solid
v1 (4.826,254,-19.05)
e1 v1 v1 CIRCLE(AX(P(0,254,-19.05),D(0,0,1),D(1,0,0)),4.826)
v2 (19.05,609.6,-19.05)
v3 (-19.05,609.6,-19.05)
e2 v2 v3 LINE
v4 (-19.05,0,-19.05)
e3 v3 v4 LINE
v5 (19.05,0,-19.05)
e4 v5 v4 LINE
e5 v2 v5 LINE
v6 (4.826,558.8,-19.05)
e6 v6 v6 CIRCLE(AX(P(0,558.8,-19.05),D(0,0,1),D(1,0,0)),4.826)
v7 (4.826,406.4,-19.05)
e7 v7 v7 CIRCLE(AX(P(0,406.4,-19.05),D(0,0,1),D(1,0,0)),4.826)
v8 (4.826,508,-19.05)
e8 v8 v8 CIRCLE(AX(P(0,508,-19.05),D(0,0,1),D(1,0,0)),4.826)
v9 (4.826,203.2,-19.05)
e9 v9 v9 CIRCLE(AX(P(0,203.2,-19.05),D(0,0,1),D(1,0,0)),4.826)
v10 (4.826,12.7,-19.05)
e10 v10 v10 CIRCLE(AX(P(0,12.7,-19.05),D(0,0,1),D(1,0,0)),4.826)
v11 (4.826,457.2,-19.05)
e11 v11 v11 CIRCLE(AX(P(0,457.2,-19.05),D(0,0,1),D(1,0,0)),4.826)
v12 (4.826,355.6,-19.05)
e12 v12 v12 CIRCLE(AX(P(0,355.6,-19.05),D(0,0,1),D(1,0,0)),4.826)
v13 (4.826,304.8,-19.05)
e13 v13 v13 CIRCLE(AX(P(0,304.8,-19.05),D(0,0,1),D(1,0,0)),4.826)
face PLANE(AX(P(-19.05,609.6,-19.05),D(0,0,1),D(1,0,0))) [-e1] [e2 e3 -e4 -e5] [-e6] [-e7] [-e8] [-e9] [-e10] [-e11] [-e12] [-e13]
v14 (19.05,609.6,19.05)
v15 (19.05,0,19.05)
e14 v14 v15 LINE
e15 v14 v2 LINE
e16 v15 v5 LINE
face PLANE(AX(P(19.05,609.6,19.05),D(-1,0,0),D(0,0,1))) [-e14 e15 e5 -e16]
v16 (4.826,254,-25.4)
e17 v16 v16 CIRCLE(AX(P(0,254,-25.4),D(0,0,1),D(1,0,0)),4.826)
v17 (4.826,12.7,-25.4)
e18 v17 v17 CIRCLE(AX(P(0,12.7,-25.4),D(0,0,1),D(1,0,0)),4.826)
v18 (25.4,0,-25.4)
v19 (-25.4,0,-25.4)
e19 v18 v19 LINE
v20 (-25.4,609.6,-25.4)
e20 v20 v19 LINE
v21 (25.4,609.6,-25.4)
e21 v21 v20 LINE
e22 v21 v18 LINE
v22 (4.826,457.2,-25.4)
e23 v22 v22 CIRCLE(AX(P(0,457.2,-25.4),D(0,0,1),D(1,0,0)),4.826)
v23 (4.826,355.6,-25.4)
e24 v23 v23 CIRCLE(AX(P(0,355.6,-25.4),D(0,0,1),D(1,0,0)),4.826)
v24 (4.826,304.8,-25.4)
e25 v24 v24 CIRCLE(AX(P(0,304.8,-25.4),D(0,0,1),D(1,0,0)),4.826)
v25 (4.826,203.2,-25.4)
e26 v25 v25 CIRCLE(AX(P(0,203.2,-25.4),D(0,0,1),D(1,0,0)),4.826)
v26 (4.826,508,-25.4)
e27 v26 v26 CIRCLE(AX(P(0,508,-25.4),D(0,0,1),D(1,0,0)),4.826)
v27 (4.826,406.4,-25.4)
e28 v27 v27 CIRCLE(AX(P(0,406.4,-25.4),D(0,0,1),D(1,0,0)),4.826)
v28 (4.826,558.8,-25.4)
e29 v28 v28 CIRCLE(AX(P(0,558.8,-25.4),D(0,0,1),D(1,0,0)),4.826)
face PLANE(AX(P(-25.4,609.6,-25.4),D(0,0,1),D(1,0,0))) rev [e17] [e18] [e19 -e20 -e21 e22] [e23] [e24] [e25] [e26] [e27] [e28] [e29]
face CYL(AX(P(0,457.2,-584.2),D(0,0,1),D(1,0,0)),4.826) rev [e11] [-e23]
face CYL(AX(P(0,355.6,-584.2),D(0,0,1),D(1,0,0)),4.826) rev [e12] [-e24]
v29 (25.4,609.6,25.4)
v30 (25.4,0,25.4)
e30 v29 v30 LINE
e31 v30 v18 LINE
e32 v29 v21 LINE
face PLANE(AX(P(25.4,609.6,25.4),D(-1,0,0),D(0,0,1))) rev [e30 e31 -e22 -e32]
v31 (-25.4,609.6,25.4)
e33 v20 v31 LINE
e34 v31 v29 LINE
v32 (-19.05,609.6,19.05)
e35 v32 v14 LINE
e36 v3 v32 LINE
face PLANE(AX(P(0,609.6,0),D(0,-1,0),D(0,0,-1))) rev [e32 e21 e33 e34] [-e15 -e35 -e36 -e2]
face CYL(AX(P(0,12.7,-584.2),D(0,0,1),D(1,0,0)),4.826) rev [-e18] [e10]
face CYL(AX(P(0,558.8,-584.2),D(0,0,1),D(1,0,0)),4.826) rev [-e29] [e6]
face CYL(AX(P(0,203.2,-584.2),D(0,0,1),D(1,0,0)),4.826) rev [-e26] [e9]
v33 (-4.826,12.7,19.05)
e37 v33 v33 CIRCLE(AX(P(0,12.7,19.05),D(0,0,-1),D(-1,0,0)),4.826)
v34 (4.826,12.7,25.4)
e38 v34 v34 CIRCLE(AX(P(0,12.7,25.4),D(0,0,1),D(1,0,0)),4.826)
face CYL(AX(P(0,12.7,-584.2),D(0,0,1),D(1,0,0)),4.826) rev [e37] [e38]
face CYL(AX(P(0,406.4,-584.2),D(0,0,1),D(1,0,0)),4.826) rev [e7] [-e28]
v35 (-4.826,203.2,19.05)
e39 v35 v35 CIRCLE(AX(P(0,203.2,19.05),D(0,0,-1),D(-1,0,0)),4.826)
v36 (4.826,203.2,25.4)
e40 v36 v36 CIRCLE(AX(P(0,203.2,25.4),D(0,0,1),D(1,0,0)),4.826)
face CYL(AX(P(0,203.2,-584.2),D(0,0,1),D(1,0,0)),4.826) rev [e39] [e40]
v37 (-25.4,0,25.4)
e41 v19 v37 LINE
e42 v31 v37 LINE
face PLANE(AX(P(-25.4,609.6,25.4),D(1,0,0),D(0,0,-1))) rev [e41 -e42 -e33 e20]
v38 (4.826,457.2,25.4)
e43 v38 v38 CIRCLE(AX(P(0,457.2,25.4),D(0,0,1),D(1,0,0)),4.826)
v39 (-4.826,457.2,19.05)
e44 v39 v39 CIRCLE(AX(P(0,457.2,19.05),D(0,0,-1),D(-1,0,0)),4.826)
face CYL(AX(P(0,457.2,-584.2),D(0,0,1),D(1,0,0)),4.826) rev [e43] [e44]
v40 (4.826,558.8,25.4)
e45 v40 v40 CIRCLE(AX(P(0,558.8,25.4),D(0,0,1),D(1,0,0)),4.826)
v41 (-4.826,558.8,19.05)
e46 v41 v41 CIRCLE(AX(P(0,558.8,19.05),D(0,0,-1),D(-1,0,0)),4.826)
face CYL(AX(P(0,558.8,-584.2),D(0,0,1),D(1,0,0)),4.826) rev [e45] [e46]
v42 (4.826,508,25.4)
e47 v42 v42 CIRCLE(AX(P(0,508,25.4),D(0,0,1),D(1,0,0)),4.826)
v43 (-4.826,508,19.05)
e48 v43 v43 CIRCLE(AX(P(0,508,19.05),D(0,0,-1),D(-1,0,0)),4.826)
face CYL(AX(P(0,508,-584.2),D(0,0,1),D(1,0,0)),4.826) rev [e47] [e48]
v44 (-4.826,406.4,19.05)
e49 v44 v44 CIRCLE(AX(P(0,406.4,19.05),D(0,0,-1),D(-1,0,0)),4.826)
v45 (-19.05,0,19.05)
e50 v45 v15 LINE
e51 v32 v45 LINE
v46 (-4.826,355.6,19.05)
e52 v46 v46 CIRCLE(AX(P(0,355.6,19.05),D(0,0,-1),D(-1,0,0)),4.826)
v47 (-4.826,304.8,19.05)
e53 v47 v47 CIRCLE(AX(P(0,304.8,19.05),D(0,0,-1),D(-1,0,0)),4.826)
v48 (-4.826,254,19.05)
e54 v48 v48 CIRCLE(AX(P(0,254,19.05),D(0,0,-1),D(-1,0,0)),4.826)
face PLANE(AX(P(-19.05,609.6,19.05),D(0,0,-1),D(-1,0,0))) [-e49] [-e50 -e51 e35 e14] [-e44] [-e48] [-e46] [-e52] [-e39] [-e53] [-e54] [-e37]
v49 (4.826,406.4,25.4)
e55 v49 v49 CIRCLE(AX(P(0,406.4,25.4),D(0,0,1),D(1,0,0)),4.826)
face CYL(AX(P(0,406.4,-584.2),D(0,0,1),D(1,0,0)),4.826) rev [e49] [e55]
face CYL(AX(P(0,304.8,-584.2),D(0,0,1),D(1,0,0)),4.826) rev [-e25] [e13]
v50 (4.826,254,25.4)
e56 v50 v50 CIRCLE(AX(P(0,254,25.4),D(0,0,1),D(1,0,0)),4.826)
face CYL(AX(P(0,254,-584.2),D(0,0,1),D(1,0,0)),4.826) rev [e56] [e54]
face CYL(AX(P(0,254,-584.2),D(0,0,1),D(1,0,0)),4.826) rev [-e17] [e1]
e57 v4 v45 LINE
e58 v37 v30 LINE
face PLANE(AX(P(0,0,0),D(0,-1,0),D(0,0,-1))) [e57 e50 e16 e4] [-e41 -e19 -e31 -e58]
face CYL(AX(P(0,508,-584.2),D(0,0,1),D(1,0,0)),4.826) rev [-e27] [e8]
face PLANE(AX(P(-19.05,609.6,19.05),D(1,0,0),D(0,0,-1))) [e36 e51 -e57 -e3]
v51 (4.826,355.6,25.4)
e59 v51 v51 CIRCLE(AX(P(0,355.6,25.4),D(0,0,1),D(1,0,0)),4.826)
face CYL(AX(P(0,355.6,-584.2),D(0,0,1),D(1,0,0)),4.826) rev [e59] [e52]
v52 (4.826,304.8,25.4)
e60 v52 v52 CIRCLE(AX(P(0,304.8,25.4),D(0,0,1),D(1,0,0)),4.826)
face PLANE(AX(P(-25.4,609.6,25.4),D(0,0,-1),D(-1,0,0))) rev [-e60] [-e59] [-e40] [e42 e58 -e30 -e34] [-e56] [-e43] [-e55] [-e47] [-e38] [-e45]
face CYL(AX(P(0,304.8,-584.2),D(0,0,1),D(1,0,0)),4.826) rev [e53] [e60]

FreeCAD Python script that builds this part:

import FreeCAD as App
import Part
import Sketcher

V = App.Vector
Q = App.Units.Quantity


def add_polygon(sketch, points):
    """Adds a closed chain of lines whose ends are joined by coincident constraints."""
    first, n = sketch.GeometryCount, len(points)
    for a, b in zip(points, points[1:] + points[:1]):
        sketch.addGeometry(Part.LineSegment(App.Vector(*a, 0), App.Vector(*b, 0)), False)
    for i in range(n):
        sketch.addConstraint(Sketcher.Constraint("Coincident", first + i, 2, first + (i + 1) % n, 1))

doc = App.newDocument("Part")
params = doc.addObject("Spreadsheet::Sheet", "Params")
for row, (alias, value) in enumerate([
    ("sketch1_width", "2 in"),
    ("sketch1_width2", "1.5 in"),
    ("pad1_length", "24 in"),
    ("sketch2_diameter", "0.38 in"),
    ("pocket1_length", "24 in"),
], start=1):
    params.set(f"A{row}", alias)
    params.set(f"B{row}", "=" + value)
    params.setAlias(f"B{row}", alias)

body = doc.addObject("PartDesign::Body", "Body")

sketch1 = body.newObject("Sketcher::SketchObject", "Sketch")
sketch1.AttachmentSupport = (doc.getObject("XZ_Plane"), [""])
sketch1.MapMode = "FlatFace"
add_polygon(sketch1, [(-25, -25), (-25, 25), (25, 25), (25, -25)])
add_polygon(sketch1, [(19, 19), (-19, 19), (-19, -19), (19, -19)])
sketch1.addConstraint(Sketcher.Constraint("Vertical", 0))
sketch1.addConstraint(Sketcher.Constraint("Horizontal", 1))
sketch1.addConstraint(Sketcher.Constraint("Vertical", 2))
sketch1.addConstraint(Sketcher.Constraint("Horizontal", 3))
sketch1.addConstraint(Sketcher.Constraint("Horizontal", 4))
sketch1.addConstraint(Sketcher.Constraint("Vertical", 5))
sketch1.addConstraint(Sketcher.Constraint("Horizontal", 6))
sketch1.addConstraint(Sketcher.Constraint("Vertical", 7))
sketch1.addConstraint(Sketcher.Constraint("Symmetric", 0, 2, 2, 2, -1, 1))
sketch1.addConstraint(Sketcher.Constraint("Symmetric", 4, 2, 6, 2, -1, 1))
sketch1.addConstraint(Sketcher.Constraint("Equal", 3, 0))
sketch1.addConstraint(Sketcher.Constraint("Equal", 6, 5))
sketch1.addConstraint(Sketcher.Constraint("DistanceX", 1, 1, 1, 2, Q("2 in")))
sketch1.addConstraint(Sketcher.Constraint("DistanceX", 4, 2, 4, 1, Q("1.5 in")))
sketch1.setExpression("Constraints[20]", "Params.sketch1_width")
sketch1.setExpression("Constraints[21]", "Params.sketch1_width2")
pad1 = body.newObject("PartDesign::Pad", "Pad")
pad1.Profile = sketch1
pad1.setExpression("Length", "Params.pad1_length")
pad1.Reversed = True

sketch2 = body.newObject("Sketcher::SketchObject", "Sketch001")
sketch2.AttachmentSupport = (doc.getObject("XY_Plane"), [""])
sketch2.MapMode = "FlatFace"
sketch2.AttachmentOffset = App.Placement(V(0, 0, 1 * 25.4), App.Rotation())
sketch2.addGeometry(Part.Circle(V(0, 12.7, 0), V(0, 0, 1), 4.8), False)
sketch2.addGeometry(Part.Circle(V(0, 558.8, 0), V(0, 0, 1), 4.8), False)
sketch2.addGeometry(Part.Circle(V(0, 508, 0), V(0, 0, 1), 4.8), False)
sketch2.addGeometry(Part.Circle(V(0, 457.2, 0), V(0, 0, 1), 4.8), False)
sketch2.addGeometry(Part.Circle(V(0, 406.4, 0), V(0, 0, 1), 4.8), False)
sketch2.addGeometry(Part.Circle(V(0, 355.6, 0), V(0, 0, 1), 4.8), False)
sketch2.addGeometry(Part.Circle(V(0, 304.8, 0), V(0, 0, 1), 4.8), False)
sketch2.addGeometry(Part.Circle(V(0, 254, 0), V(0, 0, 1), 4.8), False)
sketch2.addGeometry(Part.Circle(V(0, 203.2, 0), V(0, 0, 1), 4.8), False)
sketch2.addConstraint(Sketcher.Constraint("Equal", 0, 1))
sketch2.addConstraint(Sketcher.Constraint("Equal", 1, 2))
sketch2.addConstraint(Sketcher.Constraint("Equal", 2, 3))
sketch2.addConstraint(Sketcher.Constraint("Equal", 3, 4))
sketch2.addConstraint(Sketcher.Constraint("Equal", 4, 5))
sketch2.addConstraint(Sketcher.Constraint("Equal", 5, 6))
sketch2.addConstraint(Sketcher.Constraint("Equal", 6, 7))
sketch2.addConstraint(Sketcher.Constraint("Equal", 7, 8))
sketch2.addConstraint(Sketcher.Constraint("PointOnObject", 0, 3, -2))
sketch2.addConstraint(Sketcher.Constraint("PointOnObject", 1, 3, -2))
sketch2.addConstraint(Sketcher.Constraint("PointOnObject", 2, 3, -2))
sketch2.addConstraint(Sketcher.Constraint("PointOnObject", 3, 3, -2))
sketch2.addConstraint(Sketcher.Constraint("PointOnObject", 4, 3, -2))
sketch2.addConstraint(Sketcher.Constraint("PointOnObject", 5, 3, -2))
sketch2.addConstraint(Sketcher.Constraint("PointOnObject", 6, 3, -2))
sketch2.addConstraint(Sketcher.Constraint("PointOnObject", 7, 3, -2))
sketch2.addConstraint(Sketcher.Constraint("PointOnObject", 8, 3, -2))
sketch2.addConstraint(Sketcher.Constraint("Diameter", 0, Q("0.38 in")))
sketch2.addConstraint(Sketcher.Constraint("DistanceY", -1, 1, 1, 3, Q("22 in")))
sketch2.addConstraint(Sketcher.Constraint("DistanceY", -1, 1, 2, 3, Q("20 in")))
sketch2.addConstraint(Sketcher.Constraint("DistanceY", -1, 1, 3, 3, Q("18 in")))
sketch2.addConstraint(Sketcher.Constraint("DistanceY", -1, 1, 4, 3, Q("16 in")))
sketch2.addConstraint(Sketcher.Constraint("DistanceY", -1, 1, 5, 3, Q("14 in")))
sketch2.addConstraint(Sketcher.Constraint("DistanceY", -1, 1, 6, 3, Q("12 in")))
sketch2.addConstraint(Sketcher.Constraint("DistanceY", -1, 1, 7, 3, Q("10 in")))
sketch2.addConstraint(Sketcher.Constraint("DistanceY", -1, 1, 8, 3, Q("8 in")))
sketch2.addConstraint(Sketcher.Constraint("DistanceY", -1, 1, 0, 3, Q("0.5 in")))
sketch2.setExpression("Constraints[17]", "Params.sketch2_diameter")
pocket1 = body.newObject("PartDesign::Pocket", "Pocket")
pocket1.Profile = sketch2
pocket1.setExpression("Length", "Params.pocket1_length")

doc.recompute()
